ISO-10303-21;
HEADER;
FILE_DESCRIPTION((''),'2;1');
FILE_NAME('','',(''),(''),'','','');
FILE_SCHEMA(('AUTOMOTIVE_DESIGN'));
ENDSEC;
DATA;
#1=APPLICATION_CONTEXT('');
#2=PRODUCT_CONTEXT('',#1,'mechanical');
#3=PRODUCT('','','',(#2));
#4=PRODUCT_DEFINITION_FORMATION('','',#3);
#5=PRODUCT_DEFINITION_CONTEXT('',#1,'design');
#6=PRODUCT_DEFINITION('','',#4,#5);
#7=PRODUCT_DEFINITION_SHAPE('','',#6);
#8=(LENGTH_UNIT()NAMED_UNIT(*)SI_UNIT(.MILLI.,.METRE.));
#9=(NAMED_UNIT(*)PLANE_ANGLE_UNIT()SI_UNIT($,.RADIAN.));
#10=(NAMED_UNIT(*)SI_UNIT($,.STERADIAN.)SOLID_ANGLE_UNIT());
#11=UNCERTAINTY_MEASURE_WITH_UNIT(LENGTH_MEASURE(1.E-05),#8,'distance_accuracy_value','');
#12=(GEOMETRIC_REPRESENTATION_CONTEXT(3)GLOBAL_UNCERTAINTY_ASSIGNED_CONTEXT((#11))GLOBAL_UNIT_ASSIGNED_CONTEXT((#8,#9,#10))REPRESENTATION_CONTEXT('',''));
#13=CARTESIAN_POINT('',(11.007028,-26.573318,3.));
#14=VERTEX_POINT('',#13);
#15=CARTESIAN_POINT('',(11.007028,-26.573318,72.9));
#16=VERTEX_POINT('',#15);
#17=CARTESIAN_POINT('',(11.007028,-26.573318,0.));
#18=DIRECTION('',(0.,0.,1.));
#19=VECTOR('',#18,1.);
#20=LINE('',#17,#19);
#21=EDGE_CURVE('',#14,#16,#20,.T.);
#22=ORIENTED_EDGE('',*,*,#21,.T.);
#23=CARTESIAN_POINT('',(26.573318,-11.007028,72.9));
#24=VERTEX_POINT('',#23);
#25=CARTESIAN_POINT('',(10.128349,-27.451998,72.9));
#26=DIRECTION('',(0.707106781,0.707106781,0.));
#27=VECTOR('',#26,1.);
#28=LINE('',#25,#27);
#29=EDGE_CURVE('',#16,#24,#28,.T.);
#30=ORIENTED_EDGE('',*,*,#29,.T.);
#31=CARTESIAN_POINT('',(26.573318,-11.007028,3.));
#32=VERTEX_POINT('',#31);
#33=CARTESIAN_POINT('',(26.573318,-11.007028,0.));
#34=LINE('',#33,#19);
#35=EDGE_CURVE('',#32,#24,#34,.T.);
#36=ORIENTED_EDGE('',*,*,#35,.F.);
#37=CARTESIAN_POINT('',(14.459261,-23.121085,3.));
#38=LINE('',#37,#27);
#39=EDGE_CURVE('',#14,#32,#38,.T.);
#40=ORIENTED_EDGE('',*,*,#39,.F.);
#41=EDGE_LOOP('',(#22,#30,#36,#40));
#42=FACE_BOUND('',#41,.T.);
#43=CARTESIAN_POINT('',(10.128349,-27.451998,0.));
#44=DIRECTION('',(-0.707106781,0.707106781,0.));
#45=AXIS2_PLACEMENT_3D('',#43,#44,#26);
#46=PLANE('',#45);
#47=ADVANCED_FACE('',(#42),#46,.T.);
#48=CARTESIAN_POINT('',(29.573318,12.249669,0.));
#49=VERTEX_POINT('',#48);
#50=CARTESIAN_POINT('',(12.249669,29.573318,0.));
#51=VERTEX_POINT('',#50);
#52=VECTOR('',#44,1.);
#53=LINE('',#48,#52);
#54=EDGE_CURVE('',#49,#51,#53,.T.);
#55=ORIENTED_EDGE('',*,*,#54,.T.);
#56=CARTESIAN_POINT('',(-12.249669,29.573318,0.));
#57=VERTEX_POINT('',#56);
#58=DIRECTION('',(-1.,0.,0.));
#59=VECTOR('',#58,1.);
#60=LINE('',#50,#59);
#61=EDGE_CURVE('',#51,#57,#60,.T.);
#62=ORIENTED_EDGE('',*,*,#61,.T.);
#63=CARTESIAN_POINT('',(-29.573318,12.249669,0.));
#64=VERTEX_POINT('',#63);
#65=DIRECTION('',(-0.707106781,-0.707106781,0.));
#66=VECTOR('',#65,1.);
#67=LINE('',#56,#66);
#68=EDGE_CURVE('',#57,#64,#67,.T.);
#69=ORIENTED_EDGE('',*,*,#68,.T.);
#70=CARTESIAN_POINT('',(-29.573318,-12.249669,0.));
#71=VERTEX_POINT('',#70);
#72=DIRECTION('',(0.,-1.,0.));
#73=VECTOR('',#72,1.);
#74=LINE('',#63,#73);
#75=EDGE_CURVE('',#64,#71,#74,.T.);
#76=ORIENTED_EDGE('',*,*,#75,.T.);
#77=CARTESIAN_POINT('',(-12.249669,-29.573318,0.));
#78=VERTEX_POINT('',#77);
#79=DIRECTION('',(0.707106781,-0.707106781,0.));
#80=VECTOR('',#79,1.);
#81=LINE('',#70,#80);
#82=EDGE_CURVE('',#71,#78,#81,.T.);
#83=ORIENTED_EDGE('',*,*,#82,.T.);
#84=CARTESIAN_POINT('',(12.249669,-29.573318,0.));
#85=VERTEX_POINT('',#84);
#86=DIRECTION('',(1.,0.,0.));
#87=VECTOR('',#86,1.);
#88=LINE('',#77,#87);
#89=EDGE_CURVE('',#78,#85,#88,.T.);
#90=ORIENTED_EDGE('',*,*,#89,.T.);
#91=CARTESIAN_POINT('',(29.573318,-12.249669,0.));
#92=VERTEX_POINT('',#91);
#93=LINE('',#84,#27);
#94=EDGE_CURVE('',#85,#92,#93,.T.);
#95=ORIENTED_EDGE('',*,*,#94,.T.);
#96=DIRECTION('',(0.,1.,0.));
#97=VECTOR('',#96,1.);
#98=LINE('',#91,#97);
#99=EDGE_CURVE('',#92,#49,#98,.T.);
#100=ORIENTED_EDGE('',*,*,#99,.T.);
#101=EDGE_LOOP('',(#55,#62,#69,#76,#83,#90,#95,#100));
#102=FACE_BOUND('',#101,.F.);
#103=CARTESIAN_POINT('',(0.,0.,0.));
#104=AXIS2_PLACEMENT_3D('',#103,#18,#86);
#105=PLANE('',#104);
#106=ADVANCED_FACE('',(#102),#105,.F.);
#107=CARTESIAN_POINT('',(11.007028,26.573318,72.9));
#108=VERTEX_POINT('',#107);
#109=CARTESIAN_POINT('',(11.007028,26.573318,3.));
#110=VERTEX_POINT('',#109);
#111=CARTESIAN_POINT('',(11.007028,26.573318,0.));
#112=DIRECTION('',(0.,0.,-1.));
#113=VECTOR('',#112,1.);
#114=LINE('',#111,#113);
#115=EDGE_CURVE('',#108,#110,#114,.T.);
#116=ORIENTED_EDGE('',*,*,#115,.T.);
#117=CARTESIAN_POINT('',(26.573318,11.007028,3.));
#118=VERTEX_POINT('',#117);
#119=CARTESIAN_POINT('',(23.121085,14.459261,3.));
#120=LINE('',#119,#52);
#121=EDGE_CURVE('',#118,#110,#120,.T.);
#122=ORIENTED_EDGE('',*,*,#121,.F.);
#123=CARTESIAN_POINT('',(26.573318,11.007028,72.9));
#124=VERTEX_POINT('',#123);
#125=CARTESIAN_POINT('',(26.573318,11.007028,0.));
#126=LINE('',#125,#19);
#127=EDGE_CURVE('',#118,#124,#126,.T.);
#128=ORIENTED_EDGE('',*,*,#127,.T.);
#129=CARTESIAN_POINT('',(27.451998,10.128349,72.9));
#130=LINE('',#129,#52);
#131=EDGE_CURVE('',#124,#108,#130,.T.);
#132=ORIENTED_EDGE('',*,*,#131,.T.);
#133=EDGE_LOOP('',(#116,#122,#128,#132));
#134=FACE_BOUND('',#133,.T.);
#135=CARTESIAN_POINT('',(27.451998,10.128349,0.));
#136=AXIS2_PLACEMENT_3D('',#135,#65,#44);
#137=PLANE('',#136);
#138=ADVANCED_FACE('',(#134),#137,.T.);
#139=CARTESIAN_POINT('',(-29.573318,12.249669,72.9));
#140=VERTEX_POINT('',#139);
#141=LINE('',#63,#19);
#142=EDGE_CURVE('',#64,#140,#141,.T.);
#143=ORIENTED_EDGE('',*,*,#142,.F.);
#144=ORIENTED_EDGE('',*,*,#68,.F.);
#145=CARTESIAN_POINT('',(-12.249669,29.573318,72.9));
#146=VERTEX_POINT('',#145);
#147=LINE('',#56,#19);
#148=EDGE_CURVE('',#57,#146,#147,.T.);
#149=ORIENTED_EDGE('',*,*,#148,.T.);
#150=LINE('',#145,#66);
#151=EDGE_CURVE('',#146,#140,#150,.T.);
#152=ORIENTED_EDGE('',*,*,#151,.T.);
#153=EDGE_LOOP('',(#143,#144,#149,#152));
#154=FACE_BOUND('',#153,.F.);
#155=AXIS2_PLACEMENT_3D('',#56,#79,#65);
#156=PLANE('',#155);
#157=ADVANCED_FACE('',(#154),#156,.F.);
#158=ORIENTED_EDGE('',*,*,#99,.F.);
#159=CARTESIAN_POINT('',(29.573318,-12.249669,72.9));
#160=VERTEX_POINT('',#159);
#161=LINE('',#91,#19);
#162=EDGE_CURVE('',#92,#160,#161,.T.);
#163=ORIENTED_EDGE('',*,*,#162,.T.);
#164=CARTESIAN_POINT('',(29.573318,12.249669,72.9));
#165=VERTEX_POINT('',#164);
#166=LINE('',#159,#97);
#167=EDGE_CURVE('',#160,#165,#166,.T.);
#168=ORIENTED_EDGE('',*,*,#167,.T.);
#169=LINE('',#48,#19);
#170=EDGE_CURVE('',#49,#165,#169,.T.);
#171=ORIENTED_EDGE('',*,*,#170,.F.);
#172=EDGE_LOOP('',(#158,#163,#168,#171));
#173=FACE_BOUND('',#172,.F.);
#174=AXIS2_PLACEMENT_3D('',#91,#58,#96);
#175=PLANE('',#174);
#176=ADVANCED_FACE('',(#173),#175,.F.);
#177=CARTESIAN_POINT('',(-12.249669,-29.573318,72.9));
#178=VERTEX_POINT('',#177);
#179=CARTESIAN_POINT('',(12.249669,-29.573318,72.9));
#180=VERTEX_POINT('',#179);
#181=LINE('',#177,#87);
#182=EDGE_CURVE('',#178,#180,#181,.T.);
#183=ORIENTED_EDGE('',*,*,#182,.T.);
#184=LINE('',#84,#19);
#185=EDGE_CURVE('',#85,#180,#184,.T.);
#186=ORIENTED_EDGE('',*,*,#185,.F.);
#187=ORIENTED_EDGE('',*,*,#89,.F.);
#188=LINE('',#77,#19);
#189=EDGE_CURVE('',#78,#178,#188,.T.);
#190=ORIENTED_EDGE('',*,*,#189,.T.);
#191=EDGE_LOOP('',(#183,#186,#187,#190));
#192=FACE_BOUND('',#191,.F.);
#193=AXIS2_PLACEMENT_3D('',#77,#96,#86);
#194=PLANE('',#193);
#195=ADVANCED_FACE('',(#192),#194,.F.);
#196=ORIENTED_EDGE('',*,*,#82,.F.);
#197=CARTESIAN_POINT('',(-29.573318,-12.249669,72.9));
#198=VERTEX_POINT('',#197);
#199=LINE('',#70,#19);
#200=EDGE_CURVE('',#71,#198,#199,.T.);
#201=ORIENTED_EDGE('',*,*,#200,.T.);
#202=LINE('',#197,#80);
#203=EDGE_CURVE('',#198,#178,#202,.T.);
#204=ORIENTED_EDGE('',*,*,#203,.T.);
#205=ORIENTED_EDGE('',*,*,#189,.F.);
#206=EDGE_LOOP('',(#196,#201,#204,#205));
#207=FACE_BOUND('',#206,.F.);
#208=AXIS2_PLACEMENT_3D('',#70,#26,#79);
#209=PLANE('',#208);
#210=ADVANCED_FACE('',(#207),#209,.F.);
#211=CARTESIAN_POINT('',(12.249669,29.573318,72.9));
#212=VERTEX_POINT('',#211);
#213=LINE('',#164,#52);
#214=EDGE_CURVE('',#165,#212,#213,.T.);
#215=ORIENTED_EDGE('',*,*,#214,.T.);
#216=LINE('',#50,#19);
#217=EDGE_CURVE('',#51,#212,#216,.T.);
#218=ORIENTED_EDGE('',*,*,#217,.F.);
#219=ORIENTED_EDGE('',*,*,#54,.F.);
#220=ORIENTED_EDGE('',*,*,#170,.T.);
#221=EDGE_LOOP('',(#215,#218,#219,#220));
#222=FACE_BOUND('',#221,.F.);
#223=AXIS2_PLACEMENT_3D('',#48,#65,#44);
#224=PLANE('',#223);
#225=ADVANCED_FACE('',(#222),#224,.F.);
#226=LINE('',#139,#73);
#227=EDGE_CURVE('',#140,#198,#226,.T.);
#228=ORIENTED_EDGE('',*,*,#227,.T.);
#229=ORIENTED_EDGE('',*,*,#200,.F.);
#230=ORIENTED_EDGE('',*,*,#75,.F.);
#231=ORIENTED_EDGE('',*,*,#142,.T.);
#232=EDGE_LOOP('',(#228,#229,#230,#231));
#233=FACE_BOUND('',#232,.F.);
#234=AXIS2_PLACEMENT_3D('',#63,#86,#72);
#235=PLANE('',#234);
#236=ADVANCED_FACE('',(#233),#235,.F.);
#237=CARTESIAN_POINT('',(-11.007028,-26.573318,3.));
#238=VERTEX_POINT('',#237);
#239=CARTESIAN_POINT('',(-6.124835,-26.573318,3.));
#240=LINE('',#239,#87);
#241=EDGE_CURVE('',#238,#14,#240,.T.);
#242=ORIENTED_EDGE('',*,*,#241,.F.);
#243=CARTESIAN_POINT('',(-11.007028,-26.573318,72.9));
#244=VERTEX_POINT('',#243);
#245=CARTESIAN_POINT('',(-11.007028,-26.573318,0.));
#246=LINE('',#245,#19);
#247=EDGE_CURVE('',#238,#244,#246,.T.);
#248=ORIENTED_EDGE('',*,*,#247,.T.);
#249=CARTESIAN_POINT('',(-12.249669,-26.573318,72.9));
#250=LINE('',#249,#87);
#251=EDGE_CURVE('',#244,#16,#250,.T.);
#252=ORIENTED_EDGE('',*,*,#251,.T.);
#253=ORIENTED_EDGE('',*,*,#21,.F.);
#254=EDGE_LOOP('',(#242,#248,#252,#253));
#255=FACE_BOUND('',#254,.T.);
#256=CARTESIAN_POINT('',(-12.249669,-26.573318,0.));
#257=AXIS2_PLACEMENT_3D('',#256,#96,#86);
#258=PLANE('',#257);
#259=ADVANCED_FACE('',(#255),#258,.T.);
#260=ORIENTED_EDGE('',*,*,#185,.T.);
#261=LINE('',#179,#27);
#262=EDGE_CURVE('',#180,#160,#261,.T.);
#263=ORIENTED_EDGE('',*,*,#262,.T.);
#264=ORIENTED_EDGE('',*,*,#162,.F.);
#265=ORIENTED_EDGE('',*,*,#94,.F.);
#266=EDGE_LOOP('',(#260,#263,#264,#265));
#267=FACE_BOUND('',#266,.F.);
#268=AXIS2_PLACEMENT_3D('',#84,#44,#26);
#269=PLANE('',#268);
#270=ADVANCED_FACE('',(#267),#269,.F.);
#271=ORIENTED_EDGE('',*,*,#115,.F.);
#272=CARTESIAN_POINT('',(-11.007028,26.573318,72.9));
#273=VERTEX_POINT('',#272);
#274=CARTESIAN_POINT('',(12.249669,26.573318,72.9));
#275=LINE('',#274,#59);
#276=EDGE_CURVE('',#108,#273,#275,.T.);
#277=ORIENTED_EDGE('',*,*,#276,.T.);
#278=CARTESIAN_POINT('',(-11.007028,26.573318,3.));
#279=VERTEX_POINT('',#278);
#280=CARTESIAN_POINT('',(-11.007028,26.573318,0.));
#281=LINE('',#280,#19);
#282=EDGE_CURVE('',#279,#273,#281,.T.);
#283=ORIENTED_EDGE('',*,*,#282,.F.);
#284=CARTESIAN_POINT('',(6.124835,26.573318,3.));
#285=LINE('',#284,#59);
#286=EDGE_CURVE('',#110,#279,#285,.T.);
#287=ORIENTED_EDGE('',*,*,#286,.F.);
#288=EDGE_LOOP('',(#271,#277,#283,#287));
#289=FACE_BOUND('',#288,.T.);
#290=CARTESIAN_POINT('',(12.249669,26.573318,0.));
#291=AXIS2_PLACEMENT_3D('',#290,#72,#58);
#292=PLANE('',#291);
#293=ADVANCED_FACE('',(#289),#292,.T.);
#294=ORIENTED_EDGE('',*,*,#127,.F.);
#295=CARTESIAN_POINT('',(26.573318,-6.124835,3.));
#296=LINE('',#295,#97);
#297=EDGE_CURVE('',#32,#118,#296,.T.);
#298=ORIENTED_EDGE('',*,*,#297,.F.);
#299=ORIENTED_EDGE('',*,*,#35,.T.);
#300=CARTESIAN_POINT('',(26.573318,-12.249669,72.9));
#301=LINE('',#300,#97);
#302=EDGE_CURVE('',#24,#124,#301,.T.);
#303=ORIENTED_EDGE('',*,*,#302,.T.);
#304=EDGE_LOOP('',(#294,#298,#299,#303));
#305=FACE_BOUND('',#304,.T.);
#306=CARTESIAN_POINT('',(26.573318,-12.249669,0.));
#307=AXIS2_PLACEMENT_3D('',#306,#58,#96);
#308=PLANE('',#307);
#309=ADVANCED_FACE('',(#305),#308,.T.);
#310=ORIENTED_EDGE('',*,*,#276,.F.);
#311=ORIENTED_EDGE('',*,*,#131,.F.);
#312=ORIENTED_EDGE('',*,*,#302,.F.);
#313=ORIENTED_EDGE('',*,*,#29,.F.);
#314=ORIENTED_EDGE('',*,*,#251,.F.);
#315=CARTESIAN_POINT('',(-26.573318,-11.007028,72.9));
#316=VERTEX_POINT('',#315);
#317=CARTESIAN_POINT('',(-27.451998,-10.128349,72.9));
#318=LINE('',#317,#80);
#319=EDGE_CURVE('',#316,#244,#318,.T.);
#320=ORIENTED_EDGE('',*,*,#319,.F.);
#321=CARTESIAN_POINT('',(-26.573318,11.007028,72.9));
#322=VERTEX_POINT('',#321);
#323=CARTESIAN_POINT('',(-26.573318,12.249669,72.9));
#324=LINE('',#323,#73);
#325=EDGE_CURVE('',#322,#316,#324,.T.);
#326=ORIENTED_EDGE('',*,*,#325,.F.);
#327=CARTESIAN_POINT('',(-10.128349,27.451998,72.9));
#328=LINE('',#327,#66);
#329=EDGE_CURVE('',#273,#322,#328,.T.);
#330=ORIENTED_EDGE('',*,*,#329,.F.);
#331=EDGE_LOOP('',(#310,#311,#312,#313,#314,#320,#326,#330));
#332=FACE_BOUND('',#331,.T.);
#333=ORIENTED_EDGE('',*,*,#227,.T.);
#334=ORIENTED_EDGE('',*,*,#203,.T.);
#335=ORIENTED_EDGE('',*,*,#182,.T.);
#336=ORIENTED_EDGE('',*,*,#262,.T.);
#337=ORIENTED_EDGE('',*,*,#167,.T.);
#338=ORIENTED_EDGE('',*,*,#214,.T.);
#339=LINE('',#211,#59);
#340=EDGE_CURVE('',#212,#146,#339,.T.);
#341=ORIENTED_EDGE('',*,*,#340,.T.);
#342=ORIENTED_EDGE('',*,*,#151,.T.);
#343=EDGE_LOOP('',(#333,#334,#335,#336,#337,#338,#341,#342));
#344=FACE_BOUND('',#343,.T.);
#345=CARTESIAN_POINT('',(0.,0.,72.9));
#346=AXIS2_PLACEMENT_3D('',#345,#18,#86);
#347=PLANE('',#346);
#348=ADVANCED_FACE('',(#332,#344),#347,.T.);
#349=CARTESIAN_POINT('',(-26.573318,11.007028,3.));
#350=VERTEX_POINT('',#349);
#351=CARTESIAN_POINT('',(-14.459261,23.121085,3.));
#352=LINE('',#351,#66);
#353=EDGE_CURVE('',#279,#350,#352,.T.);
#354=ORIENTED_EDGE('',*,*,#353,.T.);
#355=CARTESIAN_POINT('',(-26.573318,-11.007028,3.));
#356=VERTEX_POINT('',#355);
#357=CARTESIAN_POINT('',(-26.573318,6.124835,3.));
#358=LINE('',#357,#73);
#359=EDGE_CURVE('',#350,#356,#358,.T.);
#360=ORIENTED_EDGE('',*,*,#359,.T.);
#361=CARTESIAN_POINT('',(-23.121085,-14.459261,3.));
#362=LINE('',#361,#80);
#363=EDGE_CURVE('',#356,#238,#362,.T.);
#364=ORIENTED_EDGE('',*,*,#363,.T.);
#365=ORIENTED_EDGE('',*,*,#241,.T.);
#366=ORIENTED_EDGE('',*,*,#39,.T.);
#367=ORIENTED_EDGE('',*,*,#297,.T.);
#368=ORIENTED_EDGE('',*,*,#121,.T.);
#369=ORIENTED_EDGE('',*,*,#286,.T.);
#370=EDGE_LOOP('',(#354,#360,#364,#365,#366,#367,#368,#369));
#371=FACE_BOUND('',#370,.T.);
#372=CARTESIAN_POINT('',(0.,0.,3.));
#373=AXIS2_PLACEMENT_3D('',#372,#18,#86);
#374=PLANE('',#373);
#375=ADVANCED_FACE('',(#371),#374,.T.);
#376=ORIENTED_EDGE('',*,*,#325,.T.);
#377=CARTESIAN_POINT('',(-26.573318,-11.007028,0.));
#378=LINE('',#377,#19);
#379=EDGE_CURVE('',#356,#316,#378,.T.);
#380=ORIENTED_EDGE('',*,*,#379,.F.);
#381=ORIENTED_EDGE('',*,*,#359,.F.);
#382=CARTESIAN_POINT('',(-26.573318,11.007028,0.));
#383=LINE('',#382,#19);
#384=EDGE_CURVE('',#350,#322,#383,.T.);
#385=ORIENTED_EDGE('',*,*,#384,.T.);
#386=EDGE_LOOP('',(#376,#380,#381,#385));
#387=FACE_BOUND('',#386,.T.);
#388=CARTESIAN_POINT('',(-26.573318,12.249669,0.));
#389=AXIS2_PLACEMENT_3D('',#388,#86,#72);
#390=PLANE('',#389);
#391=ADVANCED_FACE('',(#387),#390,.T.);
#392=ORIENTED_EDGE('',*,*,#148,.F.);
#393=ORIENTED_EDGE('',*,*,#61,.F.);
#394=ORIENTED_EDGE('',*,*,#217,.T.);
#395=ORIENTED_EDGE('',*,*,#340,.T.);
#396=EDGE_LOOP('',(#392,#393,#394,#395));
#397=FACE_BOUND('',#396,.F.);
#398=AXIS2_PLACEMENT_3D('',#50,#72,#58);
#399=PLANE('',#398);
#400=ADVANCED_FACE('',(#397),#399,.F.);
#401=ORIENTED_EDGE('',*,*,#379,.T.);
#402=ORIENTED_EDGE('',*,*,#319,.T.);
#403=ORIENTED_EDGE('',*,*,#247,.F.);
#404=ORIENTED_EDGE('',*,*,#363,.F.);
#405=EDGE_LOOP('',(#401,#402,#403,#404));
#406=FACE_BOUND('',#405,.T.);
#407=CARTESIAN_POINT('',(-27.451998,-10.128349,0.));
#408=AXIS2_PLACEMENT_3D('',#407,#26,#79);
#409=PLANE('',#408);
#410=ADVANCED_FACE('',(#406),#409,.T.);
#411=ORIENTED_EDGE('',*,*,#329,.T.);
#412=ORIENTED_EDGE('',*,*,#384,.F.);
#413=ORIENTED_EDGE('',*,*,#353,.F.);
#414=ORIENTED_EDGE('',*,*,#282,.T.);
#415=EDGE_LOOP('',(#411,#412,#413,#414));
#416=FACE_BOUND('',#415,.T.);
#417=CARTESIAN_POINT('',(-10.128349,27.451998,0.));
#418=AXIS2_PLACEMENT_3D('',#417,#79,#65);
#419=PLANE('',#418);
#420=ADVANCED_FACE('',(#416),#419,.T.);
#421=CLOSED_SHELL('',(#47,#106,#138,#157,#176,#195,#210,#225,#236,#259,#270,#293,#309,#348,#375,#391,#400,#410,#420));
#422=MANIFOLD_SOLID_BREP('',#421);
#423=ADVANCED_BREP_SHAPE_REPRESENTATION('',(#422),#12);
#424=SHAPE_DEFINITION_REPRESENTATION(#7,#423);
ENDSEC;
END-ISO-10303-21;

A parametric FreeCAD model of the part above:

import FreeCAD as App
import Part
import Sketcher
Q = App.Units.Quantity


def faces_at(feature, points):
    """Names of the faces that lie closest to the given points."""
    faces = feature.Shape.Faces
    near = lambda p: min(range(len(faces)), key=lambda i: faces[i].distToShape(Part.Vertex(*p))[0])
    return sorted({f"Face{near(p) + 1}" for p in points})

doc = App.newDocument("Part")
body = doc.addObject("PartDesign::Body", "Body")

sketch1 = body.newObject("Sketcher::SketchObject", "Sketch")
sketch1.AttachmentSupport = (doc.getObject("XY_Plane"), [""])
sketch1.MapMode = "FlatFace"
sketch1.addGeometry(Part.LineSegment(App.Vector(12, 30, 0), App.Vector(-12, 30, 0)), False)
sketch1.addGeometry(Part.LineSegment(App.Vector(-12, 30, 0), App.Vector(-30, 12, 0)), False)
sketch1.addGeometry(Part.LineSegment(App.Vector(-30, 12, 0), App.Vector(-30, -12, 0)), False)
sketch1.addGeometry(Part.LineSegment(App.Vector(-30, -12, 0), App.Vector(-12, -30, 0)), False)
sketch1.addGeometry(Part.LineSegment(App.Vector(-12, -30, 0), App.Vector(12, -30, 0)), False)
sketch1.addGeometry(Part.LineSegment(App.Vector(12, -30, 0), App.Vector(30, -12, 0)), False)
sketch1.addGeometry(Part.LineSegment(App.Vector(30, -12, 0), App.Vector(30, 12, 0)), False)
sketch1.addGeometry(Part.LineSegment(App.Vector(30, 12, 0), App.Vector(12, 30, 0)), False)
sketch1.addConstraint(Sketcher.Constraint("Coincident", 0, 2, 1, 1))
sketch1.addConstraint(Sketcher.Constraint("Coincident", 1, 2, 2, 1))
sketch1.addConstraint(Sketcher.Constraint("Coincident", 2, 2, 3, 1))
sketch1.addConstraint(Sketcher.Constraint("Coincident", 3, 2, 4, 1))
sketch1.addConstraint(Sketcher.Constraint("Coincident", 4, 2, 5, 1))
sketch1.addConstraint(Sketcher.Constraint("Coincident", 5, 2, 6, 1))
sketch1.addConstraint(Sketcher.Constraint("Coincident", 6, 2, 7, 1))
sketch1.addConstraint(Sketcher.Constraint("Coincident", 7, 2, 0, 1))
sketch1.addConstraint(Sketcher.Constraint("Horizontal", 0))
sketch1.addConstraint(Sketcher.Constraint("Vertical", 2))
sketch1.addConstraint(Sketcher.Constraint("Horizontal", 4))
sketch1.addConstraint(Sketcher.Constraint("Vertical", 6))
sketch1.addConstraint(Sketcher.Constraint("Symmetric", 0, 2, 4, 2, -1, 1))
sketch1.addConstraint(Sketcher.Constraint("Symmetric", 1, 2, 5, 2, -1, 1))
sketch1.addConstraint(Sketcher.Constraint("Perpendicular", 1, 3))
sketch1.addConstraint(Sketcher.Constraint("Perpendicular", 5, 7))
sketch1.addConstraint(Sketcher.Constraint("Horizontal", 2, 2, 5, 2))
sketch1.addConstraint(Sketcher.Constraint("Horizontal", 1, 2, 6, 2))
sketch1.addConstraint(Sketcher.Constraint("Vertical", 0, 2, 3, 2))
sketch1.addConstraint(Sketcher.Constraint("Equal", 4, 2))
sketch1.addConstraint(Sketcher.Constraint("DistanceX", 0, 2, 0, 1, Q("24.499338 mm")))
sketch1.addConstraint(Sketcher.Constraint("Distance", 1, Q("24.499339 mm")))
pad1 = body.newObject("PartDesign::Pad", "Pad")
pad1.Profile = sketch1
pad1.Length = 72.9
doc.recompute()

thickness = body.newObject("PartDesign::Thickness", "Thickness")
thickness.Base = (pad1, faces_at(pad1, [(0, 0, 72.9)]))
thickness.Value = 3
thickness.Reversed = True
thickness.Join = "Arc"

doc.recompute()
